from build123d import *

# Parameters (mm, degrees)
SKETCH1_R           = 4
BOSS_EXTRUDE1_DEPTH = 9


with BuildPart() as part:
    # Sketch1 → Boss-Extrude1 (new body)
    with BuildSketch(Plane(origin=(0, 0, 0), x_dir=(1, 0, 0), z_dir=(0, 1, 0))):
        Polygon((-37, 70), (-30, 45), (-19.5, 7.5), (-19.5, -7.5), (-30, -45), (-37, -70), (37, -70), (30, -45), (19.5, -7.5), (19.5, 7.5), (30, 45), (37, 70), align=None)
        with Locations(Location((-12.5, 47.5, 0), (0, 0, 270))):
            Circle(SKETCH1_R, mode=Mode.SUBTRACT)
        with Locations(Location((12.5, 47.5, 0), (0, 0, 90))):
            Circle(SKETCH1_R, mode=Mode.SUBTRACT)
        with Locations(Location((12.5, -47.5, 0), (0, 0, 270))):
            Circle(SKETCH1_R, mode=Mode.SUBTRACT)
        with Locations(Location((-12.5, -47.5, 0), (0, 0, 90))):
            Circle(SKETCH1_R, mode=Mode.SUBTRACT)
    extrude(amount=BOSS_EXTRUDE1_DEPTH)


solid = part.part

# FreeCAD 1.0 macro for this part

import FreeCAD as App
import Part
import Sketcher

doc = App.newDocument("Part")
body = doc.addObject("PartDesign::Body", "Body")

sketch1 = doc.addObject("Sketcher::SketchObject", "Sketch")
body.addObject(sketch1)
sketch1.AttachmentSupport = (doc.XZ_Plane, [""])
sketch1.MapMode = "FlatFace"
sketch1.addGeometry([
    Part.LineSegment(App.Vector(-37, -70, 0), App.Vector(-19.5, -7.5, 0)),
    Part.LineSegment(App.Vector(-19.5, -7.5, 0), App.Vector(-19.5, 7.5, 0)),
    Part.LineSegment(App.Vector(-19.5, 7.5, 0), App.Vector(-37, 70, 0)),
    Part.LineSegment(App.Vector(-37, 70, 0), App.Vector(37, 70, 0)),
    Part.LineSegment(App.Vector(37, 70, 0), App.Vector(19.5, 7.5, 0)),
    Part.LineSegment(App.Vector(19.5, 7.5, 0), App.Vector(19.5, -7.5, 0)),
    Part.LineSegment(App.Vector(19.5, -7.5, 0), App.Vector(37, -70, 0)),
    Part.LineSegment(App.Vector(37, -70, 0), App.Vector(-37, -70, 0)),
    Part.Circle(App.Vector(-12.5, 47.5, 0), App.Vector(0, 0, 1), 4),
    Part.Circle(App.Vector(12.5, 47.5, 0), App.Vector(0, 0, 1), 4),
    Part.Circle(App.Vector(-12.5, -47.5, 0), App.Vector(0, 0, 1), 4),
    Part.Circle(App.Vector(12.5, -47.5, 0), App.Vector(0, 0, 1), 4),
], False)
sketch1.addConstraint([
    Sketcher.Constraint("Coincident", 0, 2, 1, 1),
    Sketcher.Constraint("Coincident", 1, 2, 2, 1),
    Sketcher.Constraint("Coincident", 2, 2, 3, 1),
    Sketcher.Constraint("Coincident", 3, 2, 4, 1),
    Sketcher.Constraint("Coincident", 4, 2, 5, 1),
    Sketcher.Constraint("Coincident", 5, 2, 6, 1),
    Sketcher.Constraint("Coincident", 6, 2, 7, 1),
    Sketcher.Constraint("Coincident", 7, 2, 0, 1),
    Sketcher.Constraint("Vertical", 1),
    Sketcher.Constraint("Horizontal", 3),
    Sketcher.Constraint("Vertical", 5),
    Sketcher.Constraint("Horizontal", 7),
    Sketcher.Constraint("Equal", 8, 9),
    Sketcher.Constraint("Equal", 9, 10),
    Sketcher.Constraint("Equal", 10, 11),
    Sketcher.Constraint("Symmetric", 9, 3, 10, 3, -1, 1),
    Sketcher.Constraint("Symmetric", 8, 3, 11, 3, -1, 1),
    Sketcher.Constraint("Symmetric", 0, 2, 4, 2, -1, 1),
    Sketcher.Constraint("Symmetric", 2, 2, 6, 2, -1, 1),
    Sketcher.Constraint("Symmetric", 8, 3, 9, 3, -2),
    Sketcher.Constraint("Parallel", 0, 4),
    Sketcher.Constraint("Parallel", 2, 6),
    Sketcher.Constraint("Horizontal", 1, 2, 4, 2),
    Sketcher.Constraint("Vertical", 3, 2, 6, 2),
    Sketcher.Constraint("Diameter", 8, 8.0),
    Sketcher.Constraint("DistanceX", 3, 1, 3, 2, 74.0),
    Sketcher.Constraint("DistanceY", 1, 1, 1, 2, 15.0),
    Sketcher.Constraint("DistanceY", -1, 1, 2, 2, 70.0),
    Sketcher.Constraint("DistanceX", 8, 3, 9, 3, 25.0),
    Sketcher.Constraint("DistanceY", 10, 3, 8, 3, 95.0),
    Sketcher.Constraint("DistanceX", 0, 2, 10, 3, 7.0),
])
pad1 = doc.addObject("PartDesign::Pad", "Pad")
body.addObject(pad1)
pad1.Profile = sketch1
pad1.Length = 9
pad1.Reversed = True

doc.recompute()
